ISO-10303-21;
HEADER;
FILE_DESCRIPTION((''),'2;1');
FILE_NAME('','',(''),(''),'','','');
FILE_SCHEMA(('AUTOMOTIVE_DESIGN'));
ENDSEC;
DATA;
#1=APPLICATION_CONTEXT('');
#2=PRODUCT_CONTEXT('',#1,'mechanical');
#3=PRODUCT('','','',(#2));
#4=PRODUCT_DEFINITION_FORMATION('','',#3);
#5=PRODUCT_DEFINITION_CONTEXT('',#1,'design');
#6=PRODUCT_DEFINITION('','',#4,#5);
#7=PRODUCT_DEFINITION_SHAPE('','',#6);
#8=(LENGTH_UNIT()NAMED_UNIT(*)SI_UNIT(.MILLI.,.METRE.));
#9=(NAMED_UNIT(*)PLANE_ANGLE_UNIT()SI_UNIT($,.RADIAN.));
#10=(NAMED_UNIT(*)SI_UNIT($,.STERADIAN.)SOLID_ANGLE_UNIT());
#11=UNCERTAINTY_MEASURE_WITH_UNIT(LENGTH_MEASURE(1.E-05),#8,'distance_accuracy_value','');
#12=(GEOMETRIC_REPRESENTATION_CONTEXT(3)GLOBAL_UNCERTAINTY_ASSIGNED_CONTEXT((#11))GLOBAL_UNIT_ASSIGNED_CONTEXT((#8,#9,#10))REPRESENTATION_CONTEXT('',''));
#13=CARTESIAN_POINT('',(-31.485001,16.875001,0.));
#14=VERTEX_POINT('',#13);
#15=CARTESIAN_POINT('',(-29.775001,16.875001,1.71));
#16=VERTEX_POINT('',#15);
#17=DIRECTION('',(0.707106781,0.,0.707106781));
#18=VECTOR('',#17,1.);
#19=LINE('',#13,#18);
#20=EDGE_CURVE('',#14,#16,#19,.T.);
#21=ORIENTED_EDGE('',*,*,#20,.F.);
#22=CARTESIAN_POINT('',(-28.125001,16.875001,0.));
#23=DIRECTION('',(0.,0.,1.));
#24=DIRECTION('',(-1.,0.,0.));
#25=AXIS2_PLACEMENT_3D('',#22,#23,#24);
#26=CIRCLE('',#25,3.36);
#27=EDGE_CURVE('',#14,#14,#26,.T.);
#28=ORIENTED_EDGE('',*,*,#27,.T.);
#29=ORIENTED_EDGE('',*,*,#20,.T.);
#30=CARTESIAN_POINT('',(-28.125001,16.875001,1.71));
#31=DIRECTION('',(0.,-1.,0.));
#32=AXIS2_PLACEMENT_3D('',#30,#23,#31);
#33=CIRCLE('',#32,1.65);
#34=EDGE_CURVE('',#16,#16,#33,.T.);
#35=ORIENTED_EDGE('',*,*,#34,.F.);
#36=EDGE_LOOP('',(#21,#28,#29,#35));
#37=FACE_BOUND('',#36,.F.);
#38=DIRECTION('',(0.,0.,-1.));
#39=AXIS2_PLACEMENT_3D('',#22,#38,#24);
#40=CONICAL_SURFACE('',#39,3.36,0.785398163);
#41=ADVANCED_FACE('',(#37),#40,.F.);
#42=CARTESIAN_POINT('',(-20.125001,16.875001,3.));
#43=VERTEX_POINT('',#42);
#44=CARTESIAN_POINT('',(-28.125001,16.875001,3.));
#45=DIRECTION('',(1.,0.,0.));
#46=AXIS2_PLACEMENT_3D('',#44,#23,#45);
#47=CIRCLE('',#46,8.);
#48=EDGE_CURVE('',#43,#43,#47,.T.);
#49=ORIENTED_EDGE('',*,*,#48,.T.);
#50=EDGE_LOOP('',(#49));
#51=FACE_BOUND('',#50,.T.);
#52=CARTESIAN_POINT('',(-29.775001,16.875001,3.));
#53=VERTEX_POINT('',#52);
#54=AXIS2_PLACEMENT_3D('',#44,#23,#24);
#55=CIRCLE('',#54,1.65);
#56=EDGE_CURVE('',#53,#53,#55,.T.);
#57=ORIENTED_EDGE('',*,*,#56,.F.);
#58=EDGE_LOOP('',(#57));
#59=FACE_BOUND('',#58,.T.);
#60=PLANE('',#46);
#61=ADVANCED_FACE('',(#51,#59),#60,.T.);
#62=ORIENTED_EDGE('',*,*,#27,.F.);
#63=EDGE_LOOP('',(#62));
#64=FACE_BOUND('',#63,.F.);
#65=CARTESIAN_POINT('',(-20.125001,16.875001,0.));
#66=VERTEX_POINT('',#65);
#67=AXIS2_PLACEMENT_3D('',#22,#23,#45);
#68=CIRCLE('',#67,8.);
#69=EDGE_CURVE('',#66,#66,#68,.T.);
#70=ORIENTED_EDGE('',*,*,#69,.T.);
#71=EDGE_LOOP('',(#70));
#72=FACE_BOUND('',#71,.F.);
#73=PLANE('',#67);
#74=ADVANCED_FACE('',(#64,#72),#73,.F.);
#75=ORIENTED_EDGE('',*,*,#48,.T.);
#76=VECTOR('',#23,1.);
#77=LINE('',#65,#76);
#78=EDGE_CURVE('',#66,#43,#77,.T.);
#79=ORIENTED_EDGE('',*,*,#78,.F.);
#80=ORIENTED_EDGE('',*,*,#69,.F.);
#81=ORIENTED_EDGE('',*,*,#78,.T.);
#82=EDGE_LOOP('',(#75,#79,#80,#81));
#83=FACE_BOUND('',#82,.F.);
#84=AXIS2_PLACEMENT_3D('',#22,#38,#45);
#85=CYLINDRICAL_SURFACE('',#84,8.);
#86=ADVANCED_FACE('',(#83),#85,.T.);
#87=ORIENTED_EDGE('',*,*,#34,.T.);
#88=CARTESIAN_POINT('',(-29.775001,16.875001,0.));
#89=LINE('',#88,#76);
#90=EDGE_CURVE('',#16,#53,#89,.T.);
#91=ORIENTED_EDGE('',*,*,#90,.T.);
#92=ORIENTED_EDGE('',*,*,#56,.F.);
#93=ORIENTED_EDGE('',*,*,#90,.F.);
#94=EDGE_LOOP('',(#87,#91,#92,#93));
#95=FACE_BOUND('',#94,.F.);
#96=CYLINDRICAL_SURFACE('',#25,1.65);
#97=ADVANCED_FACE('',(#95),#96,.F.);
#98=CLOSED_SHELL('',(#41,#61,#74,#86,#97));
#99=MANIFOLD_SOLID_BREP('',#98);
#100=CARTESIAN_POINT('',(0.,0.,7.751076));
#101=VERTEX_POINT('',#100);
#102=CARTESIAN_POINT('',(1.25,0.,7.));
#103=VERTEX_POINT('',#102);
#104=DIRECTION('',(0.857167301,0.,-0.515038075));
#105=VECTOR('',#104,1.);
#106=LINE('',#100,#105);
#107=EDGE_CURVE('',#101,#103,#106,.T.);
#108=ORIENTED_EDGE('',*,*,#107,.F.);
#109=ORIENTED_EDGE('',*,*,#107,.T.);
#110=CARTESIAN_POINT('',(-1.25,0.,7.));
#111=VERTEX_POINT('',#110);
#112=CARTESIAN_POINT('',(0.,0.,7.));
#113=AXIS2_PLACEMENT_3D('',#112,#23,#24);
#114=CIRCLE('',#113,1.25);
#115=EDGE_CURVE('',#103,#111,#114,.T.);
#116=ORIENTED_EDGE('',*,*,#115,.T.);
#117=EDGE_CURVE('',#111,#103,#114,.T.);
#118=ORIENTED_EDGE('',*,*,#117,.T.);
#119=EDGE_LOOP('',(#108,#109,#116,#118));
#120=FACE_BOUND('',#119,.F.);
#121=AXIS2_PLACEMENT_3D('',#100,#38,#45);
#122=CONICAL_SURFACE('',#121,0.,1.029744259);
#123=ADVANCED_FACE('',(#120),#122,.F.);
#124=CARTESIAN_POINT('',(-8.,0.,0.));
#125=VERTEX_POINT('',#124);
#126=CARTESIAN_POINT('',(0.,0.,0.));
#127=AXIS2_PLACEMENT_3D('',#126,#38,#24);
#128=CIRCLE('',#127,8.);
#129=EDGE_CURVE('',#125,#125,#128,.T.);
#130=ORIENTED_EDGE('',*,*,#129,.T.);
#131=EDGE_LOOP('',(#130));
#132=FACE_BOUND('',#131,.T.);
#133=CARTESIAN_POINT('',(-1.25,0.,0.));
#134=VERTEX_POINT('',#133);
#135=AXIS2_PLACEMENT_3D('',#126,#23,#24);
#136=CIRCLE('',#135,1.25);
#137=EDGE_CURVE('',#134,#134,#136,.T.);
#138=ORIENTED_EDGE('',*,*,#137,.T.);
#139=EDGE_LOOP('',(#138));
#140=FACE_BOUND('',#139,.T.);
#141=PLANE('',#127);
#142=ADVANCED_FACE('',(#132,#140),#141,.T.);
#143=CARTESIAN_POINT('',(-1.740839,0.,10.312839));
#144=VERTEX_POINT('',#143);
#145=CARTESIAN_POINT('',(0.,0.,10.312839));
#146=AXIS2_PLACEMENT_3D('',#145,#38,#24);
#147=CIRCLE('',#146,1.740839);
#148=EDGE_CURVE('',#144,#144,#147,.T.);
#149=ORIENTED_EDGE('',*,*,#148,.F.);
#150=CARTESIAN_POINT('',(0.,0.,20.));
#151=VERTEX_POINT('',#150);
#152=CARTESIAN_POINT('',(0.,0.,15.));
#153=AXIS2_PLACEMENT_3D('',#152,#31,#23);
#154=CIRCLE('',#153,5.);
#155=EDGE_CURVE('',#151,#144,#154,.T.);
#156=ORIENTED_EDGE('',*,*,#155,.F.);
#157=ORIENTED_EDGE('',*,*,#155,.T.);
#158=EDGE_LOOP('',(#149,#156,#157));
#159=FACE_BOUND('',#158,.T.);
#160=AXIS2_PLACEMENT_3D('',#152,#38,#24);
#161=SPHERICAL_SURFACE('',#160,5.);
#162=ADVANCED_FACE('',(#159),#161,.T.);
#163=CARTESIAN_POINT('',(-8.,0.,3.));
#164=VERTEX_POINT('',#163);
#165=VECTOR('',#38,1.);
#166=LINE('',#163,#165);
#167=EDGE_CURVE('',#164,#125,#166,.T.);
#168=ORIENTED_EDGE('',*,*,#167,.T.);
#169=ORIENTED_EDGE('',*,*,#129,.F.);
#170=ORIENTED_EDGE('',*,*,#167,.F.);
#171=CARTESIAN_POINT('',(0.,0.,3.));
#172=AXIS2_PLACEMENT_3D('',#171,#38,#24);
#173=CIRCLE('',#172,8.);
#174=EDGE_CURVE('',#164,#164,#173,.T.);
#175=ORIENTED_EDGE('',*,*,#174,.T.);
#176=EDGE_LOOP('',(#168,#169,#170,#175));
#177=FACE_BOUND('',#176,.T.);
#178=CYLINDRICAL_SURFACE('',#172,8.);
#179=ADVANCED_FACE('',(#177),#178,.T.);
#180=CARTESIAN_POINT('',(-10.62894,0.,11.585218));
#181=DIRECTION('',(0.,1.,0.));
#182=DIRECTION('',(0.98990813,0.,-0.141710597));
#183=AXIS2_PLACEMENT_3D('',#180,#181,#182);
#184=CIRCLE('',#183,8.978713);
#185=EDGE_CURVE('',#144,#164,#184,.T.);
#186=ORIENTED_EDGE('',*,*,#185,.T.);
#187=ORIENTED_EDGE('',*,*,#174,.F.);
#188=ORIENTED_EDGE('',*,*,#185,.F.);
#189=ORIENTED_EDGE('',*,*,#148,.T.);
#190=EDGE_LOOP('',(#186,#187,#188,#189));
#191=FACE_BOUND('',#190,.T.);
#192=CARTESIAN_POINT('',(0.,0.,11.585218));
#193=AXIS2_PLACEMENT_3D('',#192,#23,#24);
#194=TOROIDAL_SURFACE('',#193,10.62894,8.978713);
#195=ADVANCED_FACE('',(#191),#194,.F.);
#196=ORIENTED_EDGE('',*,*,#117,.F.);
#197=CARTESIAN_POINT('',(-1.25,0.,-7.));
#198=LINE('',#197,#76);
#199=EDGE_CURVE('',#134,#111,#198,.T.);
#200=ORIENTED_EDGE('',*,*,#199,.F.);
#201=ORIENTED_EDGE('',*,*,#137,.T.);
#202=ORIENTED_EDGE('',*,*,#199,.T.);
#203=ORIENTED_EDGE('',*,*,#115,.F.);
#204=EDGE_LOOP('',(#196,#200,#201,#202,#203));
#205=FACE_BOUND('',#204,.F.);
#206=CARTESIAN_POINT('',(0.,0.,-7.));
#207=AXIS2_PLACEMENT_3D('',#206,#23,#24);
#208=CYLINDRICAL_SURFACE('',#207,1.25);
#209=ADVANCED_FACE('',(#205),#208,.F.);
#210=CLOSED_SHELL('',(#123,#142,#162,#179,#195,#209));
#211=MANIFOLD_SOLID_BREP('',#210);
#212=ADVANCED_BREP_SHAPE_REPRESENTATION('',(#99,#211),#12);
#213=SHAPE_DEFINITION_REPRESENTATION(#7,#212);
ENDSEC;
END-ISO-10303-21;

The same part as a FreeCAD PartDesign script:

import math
import FreeCAD as App
import Part
import Sketcher
Q = App.Units.Quantity

doc = App.newDocument("Part")
body = doc.addObject("PartDesign::Body", "Body")

# Sketch on XZ plane
sketch1 = body.newObject("Sketcher::SketchObject", "Sketch")
sketch1.AttachmentSupport = (doc.getObject("XZ_Plane"), [""])
sketch1.MapMode = "FlatFace"
sketch1.addGeometry(Part.LineSegment(App.Vector(-8, 0, 0), App.Vector(0, 0, 0)), False)
sketch1.addGeometry(Part.LineSegment(App.Vector(0, 0, 0), App.Vector(0, 20, 0)), False)
sketch1.addGeometry(Part.ArcOfCircle(Part.Circle(App.Vector(0, 15, 0), App.Vector(0, 0, 1), 5), math.radians(90), math.radians(250)), False)
sketch1.addGeometry(Part.ArcOfCircle(Part.Circle(App.Vector(-10.6, 11.6, 0), App.Vector(0, 0, 1), 9), math.radians(-73), math.radians(-8)), False)
sketch1.addGeometry(Part.LineSegment(App.Vector(-8, 3, 0), App.Vector(-8, 0, 0)), False)
sketch1.addConstraint(Sketcher.Constraint("Coincident", 0, 2, 1, 1))
sketch1.addConstraint(Sketcher.Constraint("Coincident", 1, 2, 2, 1))
sketch1.addConstraint(Sketcher.Constraint("Coincident", 2, 2, 3, 2))
sketch1.addConstraint(Sketcher.Constraint("Coincident", 3, 1, 4, 1))
sketch1.addConstraint(Sketcher.Constraint("Coincident", 4, 2, 0, 1))
sketch1.addConstraint(Sketcher.Constraint("Horizontal", 0))
sketch1.addConstraint(Sketcher.Constraint("Vertical", 1))
sketch1.addConstraint(Sketcher.Constraint("Vertical", 4))
sketch1.addConstraint(Sketcher.Constraint("Coincident", 0, 2, -1, 1))
sketch1.addConstraint(Sketcher.Constraint("PointOnObject", 2, 3, -2))
sketch1.addConstraint(Sketcher.Constraint("Radius", 2, Q("5 mm")))
sketch1.addConstraint(Sketcher.Constraint("DistanceX", 0, 1, 0, 2, Q("8 mm")))
sketch1.addConstraint(Sketcher.Constraint("DistanceY", 1, 1, 1, 2, Q("20 mm")))
sketch1.addConstraint(Sketcher.Constraint("DistanceY", 4, 2, 4, 1, Q("3 mm")))
sketch1.addConstraint(Sketcher.Constraint("Radius", 3, Q("8.978713 mm")))
sketch1.addConstraint(Sketcher.Constraint("DistanceX", 3, 3, 2, 2, Q("8.888101 mm")))
revolution = body.newObject("PartDesign::Revolution", "Revolution")
revolution.Profile = sketch1
revolution.ReferenceAxis = (sketch1, ["V_Axis"])
revolution.Angle = 360

# Sketch on XY plane
sketch2 = body.newObject("Sketcher::SketchObject", "Sketch001")
sketch2.AttachmentSupport = (doc.getObject("XY_Plane"), [""])
sketch2.MapMode = "FlatFace"
sketch2.addGeometry(Part.Circle(App.Vector(0, 0, 0), App.Vector(0, 0, 1), 1.2), False)
sketch2.addConstraint(Sketcher.Constraint("Coincident", 0, 3, -1, 1))
sketch2.addConstraint(Sketcher.Constraint("Diameter", 0, Q("2.5 mm")))
doc.recompute()
hole = body.newObject("PartDesign::Hole", "Hole")
hole.Profile = sketch2
hole.ThreadType = "None"
hole.Diameter = 2.5
hole.DepthType = "Dimension"
hole.Depth = 7
hole.DrillPoint = "Angled"
hole.DrillPointAngle = 118
hole.Reversed = True
body2 = doc.addObject("PartDesign::Body", "Body001")

# Sketch on XY plane
sketch3 = body2.newObject("Sketcher::SketchObject", "Sketch002")
sketch3.AttachmentSupport = (doc.getObject("XY_Plane001"), [""])
sketch3.MapMode = "FlatFace"
sketch3.addGeometry(Part.Circle(App.Vector(-28, 17, 0), App.Vector(0, 0, 1), 8), False)
sketch3.addConstraint(Sketcher.Constraint("Diameter", 0, Q("16 mm")))
sketch3.addConstraint(Sketcher.Constraint("DistanceX", 0, 3, -1, 1, Q("28.125001 mm")))
sketch3.addConstraint(Sketcher.Constraint("DistanceY", -1, 1, 0, 3, Q("16.875001 mm")))
pad1 = body2.newObject("PartDesign::Pad", "Pad")
pad1.Profile = sketch3
pad1.Length = 3

# Sketch on XY plane
sketch4 = body2.newObject("Sketcher::SketchObject", "Sketch003")
sketch4.AttachmentSupport = (doc.getObject("XY_Plane001"), [""])
sketch4.MapMode = "FlatFace"
sketch4.addGeometry(Part.Circle(App.Vector(-28.1, 16.9, 0), App.Vector(0, 0, 1), 1.6), False)
sketch4.addConstraint(Sketcher.Constraint("Diameter", 0, Q("3.3 mm")))
sketch4.addConstraint(Sketcher.Constraint("DistanceX", 0, 3, -1, 1, Q("28.125001 mm")))
sketch4.addConstraint(Sketcher.Constraint("DistanceY", -1, 1, 0, 3, Q("16.875001 mm")))
doc.recompute()
hole2 = body2.newObject("PartDesign::Hole", "Hole001")
hole2.Profile = sketch4
hole2.ThreadType = "None"
hole2.Diameter = 3.3
hole2.DepthType = "Dimension"
hole2.Depth = 7
hole2.DrillPoint = "Angled"
hole2.DrillPointAngle = 118
hole2.HoleCutType = "Countersink"
hole2.HoleCutDiameter = 6.72
hole2.HoleCutCountersinkAngle = 90
hole2.Reversed = True

doc.recompute()
